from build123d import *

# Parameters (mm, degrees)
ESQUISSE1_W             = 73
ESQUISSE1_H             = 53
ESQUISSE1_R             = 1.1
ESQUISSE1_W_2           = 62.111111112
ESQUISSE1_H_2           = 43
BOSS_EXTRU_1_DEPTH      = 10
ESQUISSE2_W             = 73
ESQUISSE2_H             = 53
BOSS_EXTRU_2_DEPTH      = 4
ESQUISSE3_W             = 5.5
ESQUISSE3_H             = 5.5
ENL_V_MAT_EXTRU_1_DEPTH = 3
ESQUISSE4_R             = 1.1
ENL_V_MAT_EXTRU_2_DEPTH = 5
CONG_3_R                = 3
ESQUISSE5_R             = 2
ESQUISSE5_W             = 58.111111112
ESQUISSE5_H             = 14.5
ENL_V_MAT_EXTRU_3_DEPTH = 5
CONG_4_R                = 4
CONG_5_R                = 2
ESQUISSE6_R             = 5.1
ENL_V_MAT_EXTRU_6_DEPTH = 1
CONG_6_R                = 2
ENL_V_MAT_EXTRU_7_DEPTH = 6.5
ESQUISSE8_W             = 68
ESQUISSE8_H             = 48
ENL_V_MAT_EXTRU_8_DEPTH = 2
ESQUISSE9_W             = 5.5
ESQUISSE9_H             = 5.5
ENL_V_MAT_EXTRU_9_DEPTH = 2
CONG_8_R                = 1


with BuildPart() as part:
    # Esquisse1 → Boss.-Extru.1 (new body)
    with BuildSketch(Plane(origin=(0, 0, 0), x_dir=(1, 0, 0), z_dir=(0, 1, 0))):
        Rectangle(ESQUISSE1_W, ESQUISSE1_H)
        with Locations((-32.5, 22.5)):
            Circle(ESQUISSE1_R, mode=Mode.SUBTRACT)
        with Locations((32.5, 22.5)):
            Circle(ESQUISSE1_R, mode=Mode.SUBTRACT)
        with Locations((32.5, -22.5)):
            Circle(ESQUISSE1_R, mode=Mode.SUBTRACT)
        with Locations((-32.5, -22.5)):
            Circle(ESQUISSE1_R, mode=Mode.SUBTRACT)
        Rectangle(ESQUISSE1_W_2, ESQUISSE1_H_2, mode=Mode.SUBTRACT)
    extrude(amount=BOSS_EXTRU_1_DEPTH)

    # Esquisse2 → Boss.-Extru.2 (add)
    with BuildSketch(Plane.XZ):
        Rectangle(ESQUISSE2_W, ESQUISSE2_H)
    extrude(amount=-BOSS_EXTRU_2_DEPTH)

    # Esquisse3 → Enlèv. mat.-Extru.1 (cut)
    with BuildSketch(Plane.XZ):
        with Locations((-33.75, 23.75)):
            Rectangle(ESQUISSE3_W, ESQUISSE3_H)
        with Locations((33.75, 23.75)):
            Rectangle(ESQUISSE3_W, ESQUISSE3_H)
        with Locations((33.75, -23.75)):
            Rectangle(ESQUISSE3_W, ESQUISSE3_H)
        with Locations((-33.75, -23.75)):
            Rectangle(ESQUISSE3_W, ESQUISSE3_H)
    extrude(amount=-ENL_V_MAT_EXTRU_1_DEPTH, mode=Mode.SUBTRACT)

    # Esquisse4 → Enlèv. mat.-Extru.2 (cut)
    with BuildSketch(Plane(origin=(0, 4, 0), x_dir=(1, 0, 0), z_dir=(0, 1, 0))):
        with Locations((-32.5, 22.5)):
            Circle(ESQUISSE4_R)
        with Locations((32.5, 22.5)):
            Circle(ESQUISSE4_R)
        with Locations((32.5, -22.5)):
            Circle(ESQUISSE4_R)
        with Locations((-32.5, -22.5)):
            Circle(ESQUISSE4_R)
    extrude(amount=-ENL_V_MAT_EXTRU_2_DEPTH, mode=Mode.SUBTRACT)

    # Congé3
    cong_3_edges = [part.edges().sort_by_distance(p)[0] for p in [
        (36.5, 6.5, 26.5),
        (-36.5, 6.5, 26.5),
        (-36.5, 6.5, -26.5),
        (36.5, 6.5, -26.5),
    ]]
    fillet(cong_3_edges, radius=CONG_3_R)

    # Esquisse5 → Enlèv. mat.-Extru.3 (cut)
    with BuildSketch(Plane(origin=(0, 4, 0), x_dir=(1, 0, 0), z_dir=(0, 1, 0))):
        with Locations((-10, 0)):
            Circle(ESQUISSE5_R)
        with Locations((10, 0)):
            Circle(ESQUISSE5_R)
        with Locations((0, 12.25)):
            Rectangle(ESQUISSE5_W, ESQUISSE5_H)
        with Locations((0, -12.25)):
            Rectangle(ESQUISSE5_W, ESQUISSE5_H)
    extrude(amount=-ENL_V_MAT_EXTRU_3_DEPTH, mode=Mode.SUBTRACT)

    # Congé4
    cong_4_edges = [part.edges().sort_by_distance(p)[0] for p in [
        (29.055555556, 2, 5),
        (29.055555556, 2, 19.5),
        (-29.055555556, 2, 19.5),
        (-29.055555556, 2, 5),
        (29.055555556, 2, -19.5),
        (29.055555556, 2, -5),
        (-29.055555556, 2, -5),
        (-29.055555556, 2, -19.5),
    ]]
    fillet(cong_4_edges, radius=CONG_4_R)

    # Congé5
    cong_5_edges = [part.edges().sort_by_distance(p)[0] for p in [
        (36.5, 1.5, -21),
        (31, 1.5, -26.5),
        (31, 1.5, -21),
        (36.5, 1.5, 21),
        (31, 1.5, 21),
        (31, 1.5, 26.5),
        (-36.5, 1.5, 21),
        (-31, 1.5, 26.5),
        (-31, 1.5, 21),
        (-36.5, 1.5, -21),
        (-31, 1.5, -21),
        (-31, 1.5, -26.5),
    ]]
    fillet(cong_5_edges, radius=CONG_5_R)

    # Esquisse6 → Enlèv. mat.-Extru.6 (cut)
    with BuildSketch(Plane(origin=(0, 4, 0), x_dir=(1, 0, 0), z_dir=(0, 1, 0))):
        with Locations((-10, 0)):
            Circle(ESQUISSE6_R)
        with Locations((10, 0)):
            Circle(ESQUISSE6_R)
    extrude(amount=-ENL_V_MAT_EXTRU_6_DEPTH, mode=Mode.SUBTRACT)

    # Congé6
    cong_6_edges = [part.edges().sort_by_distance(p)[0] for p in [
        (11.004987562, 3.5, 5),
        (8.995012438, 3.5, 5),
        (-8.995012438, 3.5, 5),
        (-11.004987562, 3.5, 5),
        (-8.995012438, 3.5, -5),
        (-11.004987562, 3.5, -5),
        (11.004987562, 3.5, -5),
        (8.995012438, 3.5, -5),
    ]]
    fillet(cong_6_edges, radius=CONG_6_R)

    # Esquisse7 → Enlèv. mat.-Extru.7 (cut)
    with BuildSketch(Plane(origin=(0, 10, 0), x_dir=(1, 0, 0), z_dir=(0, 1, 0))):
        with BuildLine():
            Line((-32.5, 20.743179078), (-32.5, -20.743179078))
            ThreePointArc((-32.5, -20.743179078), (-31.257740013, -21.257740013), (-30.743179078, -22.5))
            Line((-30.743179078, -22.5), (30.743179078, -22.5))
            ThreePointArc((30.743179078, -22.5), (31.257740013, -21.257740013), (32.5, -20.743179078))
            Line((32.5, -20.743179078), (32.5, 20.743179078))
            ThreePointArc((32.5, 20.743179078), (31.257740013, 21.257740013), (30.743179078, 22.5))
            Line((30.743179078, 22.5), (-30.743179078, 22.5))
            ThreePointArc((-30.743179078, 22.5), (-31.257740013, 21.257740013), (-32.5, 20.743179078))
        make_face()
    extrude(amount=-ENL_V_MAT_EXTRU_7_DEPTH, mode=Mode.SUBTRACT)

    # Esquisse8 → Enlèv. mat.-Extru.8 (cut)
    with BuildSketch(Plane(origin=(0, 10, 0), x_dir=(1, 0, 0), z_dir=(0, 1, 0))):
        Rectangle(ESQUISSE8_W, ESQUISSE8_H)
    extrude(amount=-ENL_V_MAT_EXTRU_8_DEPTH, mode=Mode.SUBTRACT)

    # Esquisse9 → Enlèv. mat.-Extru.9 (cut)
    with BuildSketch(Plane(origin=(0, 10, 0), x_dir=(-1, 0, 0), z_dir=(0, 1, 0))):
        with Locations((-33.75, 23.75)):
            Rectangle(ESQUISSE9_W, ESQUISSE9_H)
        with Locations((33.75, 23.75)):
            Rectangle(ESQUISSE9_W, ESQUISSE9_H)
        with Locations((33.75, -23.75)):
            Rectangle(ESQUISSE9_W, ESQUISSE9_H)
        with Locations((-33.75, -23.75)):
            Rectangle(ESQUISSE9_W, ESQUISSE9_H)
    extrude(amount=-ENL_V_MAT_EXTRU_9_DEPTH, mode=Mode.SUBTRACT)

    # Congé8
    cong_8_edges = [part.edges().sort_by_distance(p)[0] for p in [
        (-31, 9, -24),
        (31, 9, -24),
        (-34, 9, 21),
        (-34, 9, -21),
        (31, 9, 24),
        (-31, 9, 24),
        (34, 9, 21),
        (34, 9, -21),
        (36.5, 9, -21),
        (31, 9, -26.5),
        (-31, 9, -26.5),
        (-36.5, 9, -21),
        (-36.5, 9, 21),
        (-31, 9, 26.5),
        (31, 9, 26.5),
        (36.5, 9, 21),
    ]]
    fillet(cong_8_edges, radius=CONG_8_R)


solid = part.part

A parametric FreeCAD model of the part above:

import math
import FreeCAD as App
import Part
import Sketcher
from FreeCAD import Vector
Q = App.Units.Quantity


def edges_at(feature, points):
    """Names of the edges that pass closest to the given points."""
    edges = feature.Shape.Edges
    near = lambda p: min(range(len(edges)), key=lambda i: edges[i].distToShape(Part.Vertex(*p))[0])
    return sorted({f"Edge{near(p) + 1}" for p in points})


def add_polygon(sketch, points):
    """Adds a closed chain of lines whose ends are joined by coincident constraints."""
    first, n = sketch.GeometryCount, len(points)
    for a, b in zip(points, points[1:] + points[:1]):
        sketch.addGeometry(Part.LineSegment(App.Vector(*a, 0), App.Vector(*b, 0)), False)
    for i in range(n):
        sketch.addConstraint(Sketcher.Constraint("Coincident", first + i, 2, first + (i + 1) % n, 1))

doc = App.newDocument("Part")
body = doc.addObject("PartDesign::Body", "Body")

sketch1 = body.newObject("Sketcher::SketchObject", "Sketch")
sketch1.AttachmentSupport = (doc.getObject("XZ_Plane"), [""])
sketch1.MapMode = "FlatFace"
add_polygon(sketch1, [(-36.5, -26.5), (-36.5, 26.5), (36.5, 26.5), (36.5, -26.5)])
sketch1.addGeometry(Part.Circle(Vector(-32.5, 22.5, 0), Vector(0, 0, 1), 1.1), False)
sketch1.addGeometry(Part.Circle(Vector(32.5, 22.5, 0), Vector(0, 0, 1), 1.1), False)
sketch1.addGeometry(Part.Circle(Vector(-32.5, -22.5, 0), Vector(0, 0, 1), 1.1), False)
add_polygon(sketch1, [(31.1, 21.5), (-31.1, 21.5), (-31.1, -21.5), (31.1, -21.5)])
sketch1.addGeometry(Part.Circle(Vector(32.5, -22.5, 0), Vector(0, 0, 1), 1.1), False)
sketch1.addConstraint(Sketcher.Constraint("Vertical", 0))
sketch1.addConstraint(Sketcher.Constraint("Horizontal", 1))
sketch1.addConstraint(Sketcher.Constraint("Vertical", 2))
sketch1.addConstraint(Sketcher.Constraint("Horizontal", 3))
sketch1.addConstraint(Sketcher.Constraint("Horizontal", 7))
sketch1.addConstraint(Sketcher.Constraint("Vertical", 8))
sketch1.addConstraint(Sketcher.Constraint("Horizontal", 9))
sketch1.addConstraint(Sketcher.Constraint("Vertical", 10))
sketch1.addConstraint(Sketcher.Constraint("Equal", 4, 5))
sketch1.addConstraint(Sketcher.Constraint("Equal", 5, 6))
sketch1.addConstraint(Sketcher.Constraint("Equal", 6, 11))
sketch1.addConstraint(Sketcher.Constraint("Symmetric", 5, 3, 6, 3, -1, 1))
sketch1.addConstraint(Sketcher.Constraint("Symmetric", 4, 3, 11, 3, -1, 1))
sketch1.addConstraint(Sketcher.Constraint("Symmetric", 0, 2, 2, 2, -1, 1))
sketch1.addConstraint(Sketcher.Constraint("Symmetric", 7, 2, 9, 2, -1, 1))
sketch1.addConstraint(Sketcher.Constraint("Symmetric", 4, 3, 5, 3, -2))
sketch1.addConstraint(Sketcher.Constraint("Diameter", 4, Q("2.2 mm")))
sketch1.addConstraint(Sketcher.Constraint("DistanceX", 1, 1, 1, 2, Q("73 mm")))
sketch1.addConstraint(Sketcher.Constraint("DistanceY", 0, 1, 0, 2, Q("53 mm")))
sketch1.addConstraint(Sketcher.Constraint("DistanceY", 8, 2, 8, 1, Q("43 mm")))
sketch1.addConstraint(Sketcher.Constraint("DistanceX", 4, 3, 5, 3, Q("65 mm")))
sketch1.addConstraint(Sketcher.Constraint("DistanceY", 6, 3, 4, 3, Q("45 mm")))
sketch1.addConstraint(Sketcher.Constraint("DistanceX", 7, 2, 7, 1, Q("62.111111 mm")))
pad1 = body.newObject("PartDesign::Pad", "Pad")
pad1.Profile = sketch1
pad1.Length = 10
pad1.Reversed = True

sketch2 = body.newObject("Sketcher::SketchObject", "Sketch001")
sketch2.AttachmentSupport = (doc.getObject("XZ_Plane"), [""])
sketch2.MapMode = "FlatFace"
add_polygon(sketch2, [(-36, 26), (-36, -26), (36, -26), (36, 26)])
sketch2.addConstraint(Sketcher.Constraint("Vertical", 0))
sketch2.addConstraint(Sketcher.Constraint("Horizontal", 1))
sketch2.addConstraint(Sketcher.Constraint("Vertical", 2))
sketch2.addConstraint(Sketcher.Constraint("Horizontal", 3))
sketch2.addConstraint(Sketcher.Constraint("Symmetric", 0, 2, 2, 2, -1, 1))
sketch2.addConstraint(Sketcher.Constraint("DistanceX", 1, 1, 1, 2, Q("73 mm")))
sketch2.addConstraint(Sketcher.Constraint("DistanceY", 0, 2, 0, 1, Q("53 mm")))
pad2 = body.newObject("PartDesign::Pad", "Pad001")
pad2.Profile = sketch2
pad2.Length = 4
pad2.Reversed = True

sketch3 = body.newObject("Sketcher::SketchObject", "Sketch002")
sketch3.AttachmentSupport = (doc.getObject("XZ_Plane"), [""])
sketch3.MapMode = "FlatFace"
add_polygon(sketch3, [(-36, 26), (-36, 21), (-31, 21), (-31, 26)])
add_polygon(sketch3, [(31, 26), (31, 21), (36, 21), (36, 26)])
add_polygon(sketch3, [(31, -21), (31, -26), (36, -26), (36, -21)])
add_polygon(sketch3, [(-36, -21), (-36, -26), (-31, -26), (-31, -21)])
sketch3.addConstraint(Sketcher.Constraint("Vertical", 0))
sketch3.addConstraint(Sketcher.Constraint("Horizontal", 1))
sketch3.addConstraint(Sketcher.Constraint("Vertical", 2))
sketch3.addConstraint(Sketcher.Constraint("Horizontal", 3))
sketch3.addConstraint(Sketcher.Constraint("Vertical", 4))
sketch3.addConstraint(Sketcher.Constraint("Horizontal", 5))
sketch3.addConstraint(Sketcher.Constraint("Vertical", 6))
sketch3.addConstraint(Sketcher.Constraint("Horizontal", 7))
sketch3.addConstraint(Sketcher.Constraint("Vertical", 8))
sketch3.addConstraint(Sketcher.Constraint("Horizontal", 9))
sketch3.addConstraint(Sketcher.Constraint("Vertical", 10))
sketch3.addConstraint(Sketcher.Constraint("Horizontal", 11))
sketch3.addConstraint(Sketcher.Constraint("Vertical", 12))
sketch3.addConstraint(Sketcher.Constraint("Horizontal", 13))
sketch3.addConstraint(Sketcher.Constraint("Vertical", 14))
sketch3.addConstraint(Sketcher.Constraint("Horizontal", 15))
sketch3.addConstraint(Sketcher.Constraint("Symmetric", 2, 2, 8, 2, -1, 1))
sketch3.addConstraint(Sketcher.Constraint("Symmetric", 0, 2, 10, 2, -1, 1))
sketch3.addConstraint(Sketcher.Constraint("Symmetric", 6, 2, 12, 2, -1, 1))
sketch3.addConstraint(Sketcher.Constraint("Symmetric", 4, 2, 14, 2, -1, 1))
sketch3.addConstraint(Sketcher.Constraint("Symmetric", 1, 2, 4, 2, -2))
sketch3.addConstraint(Sketcher.Constraint("Symmetric", 3, 2, 6, 2, -2))
sketch3.addConstraint(Sketcher.Constraint("Equal", 15, 0))
sketch3.addConstraint(Sketcher.Constraint("DistanceX", 1, 1, 1, 2, Q("5.5 mm")))
sketch3.addConstraint(Sketcher.Constraint("DistanceY", -1, 1, 0, 2, Q("21 mm")))
sketch3.addConstraint(Sketcher.Constraint("DistanceX", 1, 2, -1, 1, Q("31 mm")))
pocket1 = body.newObject("PartDesign::Pocket", "Pocket")
pocket1.Profile = sketch3
pocket1.Length = 3

sketch4 = body.newObject("Sketcher::SketchObject", "Sketch003")
sketch4.AttachmentSupport = (doc.getObject("XZ_Plane"), [""])
sketch4.MapMode = "FlatFace"
sketch4.AttachmentOffset = App.Placement(Vector(0, 0, -4), App.Rotation())
sketch4.addGeometry(Part.Circle(Vector(-32.5, -22.5, 0), Vector(0, 0, 1), 1.1), False)
sketch4.addGeometry(Part.Circle(Vector(32.5, -22.5, 0), Vector(0, 0, 1), 1.1), False)
sketch4.addGeometry(Part.Circle(Vector(32.5, 22.5, 0), Vector(0, 0, 1), 1.1), False)
sketch4.addGeometry(Part.Circle(Vector(-32.5, 22.5, 0), Vector(0, 0, 1), 1.1), False)
sketch4.addConstraint(Sketcher.Constraint("Equal", 0, 1))
sketch4.addConstraint(Sketcher.Constraint("Equal", 1, 2))
sketch4.addConstraint(Sketcher.Constraint("Equal", 2, 3))
sketch4.addConstraint(Sketcher.Constraint("Symmetric", 0, 3, 2, 3, -1, 1))
sketch4.addConstraint(Sketcher.Constraint("Symmetric", 1, 3, 3, 3, -1, 1))
sketch4.addConstraint(Sketcher.Constraint("Symmetric", 0, 3, 1, 3, -2))
sketch4.addConstraint(Sketcher.Constraint("Diameter", 0, Q("2.2 mm")))
sketch4.addConstraint(Sketcher.Constraint("DistanceX", 0, 3, 1, 3, Q("65 mm")))
sketch4.addConstraint(Sketcher.Constraint("DistanceY", 1, 3, 2, 3, Q("45 mm")))
pocket2 = body.newObject("PartDesign::Pocket", "Pocket001")
pocket2.Profile = sketch4
pocket2.Length = 5
pocket2.Reversed = True
doc.recompute()

fillet = body.newObject("PartDesign::Fillet", "Fillet")
fillet.Base = (pocket2, edges_at(pocket2, [
    (36.5, 6.5, 26.5),
    (-36.5, 6.5, 26.5),
    (-36.5, 6.5, -26.5),
    (36.5, 6.5, -26.5),
]))
fillet.Radius = 3

sketch5 = body.newObject("Sketcher::SketchObject", "Sketch004")
sketch5.AttachmentSupport = (doc.getObject("XZ_Plane"), [""])
sketch5.MapMode = "FlatFace"
sketch5.AttachmentOffset = App.Placement(Vector(0, 0, -4), App.Rotation())
sketch5.addGeometry(Part.Circle(Vector(-10, 0, 0), Vector(0, 0, 1), 2), False)
sketch5.addGeometry(Part.Circle(Vector(10, 0, 0), Vector(0, 0, 1), 2), False)
add_polygon(sketch5, [(-29.1, -19.5), (-29.1, -5), (29.1, -5), (29.1, -19.5)])
add_polygon(sketch5, [(-29.1, 5), (-29.1, 19.5), (29.1, 19.5), (29.1, 5)])
sketch5.addConstraint(Sketcher.Constraint("Vertical", 2))
sketch5.addConstraint(Sketcher.Constraint("Horizontal", 3))
sketch5.addConstraint(Sketcher.Constraint("Vertical", 4))
sketch5.addConstraint(Sketcher.Constraint("Horizontal", 5))
sketch5.addConstraint(Sketcher.Constraint("Vertical", 6))
sketch5.addConstraint(Sketcher.Constraint("Horizontal", 7))
sketch5.addConstraint(Sketcher.Constraint("Vertical", 8))
sketch5.addConstraint(Sketcher.Constraint("Horizontal", 9))
sketch5.addConstraint(Sketcher.Constraint("Equal", 0, 1))
sketch5.addConstraint(Sketcher.Constraint("Symmetric", 0, 3, 1, 3, -1, 1))
sketch5.addConstraint(Sketcher.Constraint("Symmetric", 4, 2, 6, 2, -1, 1))
sketch5.addConstraint(Sketcher.Constraint("Symmetric", 2, 2, 8, 2, -1, 1))
sketch5.addConstraint(Sketcher.Constraint("PointOnObject", 0, 3, -1))
sketch5.addConstraint(Sketcher.Constraint("Vertical", 5, 2, 6, 2))
sketch5.addConstraint(Sketcher.Constraint("Diameter", 0, Q("4 mm")))
sketch5.addConstraint(Sketcher.Constraint("DistanceY", 2, 1, 2, 2, Q("14.5 mm")))
sketch5.addConstraint(Sketcher.Constraint("DistanceX", 0, 3, -1, 1, Q("10 mm")))
sketch5.addConstraint(Sketcher.Constraint("DistanceY", 2, 2, -1, 1, Q("5 mm")))
sketch5.addConstraint(Sketcher.Constraint("DistanceX", 3, 1, 3, 2, Q("58.111111 mm")))
pocket3 = body.newObject("PartDesign::Pocket", "Pocket002")
pocket3.Profile = sketch5
pocket3.Length = 5
pocket3.Reversed = True
doc.recompute()

fillet2 = body.newObject("PartDesign::Fillet", "Fillet001")
fillet2.Base = (pocket3, edges_at(pocket3, [
    (29.056, 2, 5),
    (29.056, 2, 19.5),
    (-29.056, 2, 19.5),
    (-29.056, 2, 5),
    (29.056, 2, -19.5),
    (29.056, 2, -5),
    (-29.056, 2, -5),
    (-29.056, 2, -19.5),
]))
fillet2.Radius = 4
doc.recompute()

fillet3 = body.newObject("PartDesign::Fillet", "Fillet002")
fillet3.Base = (fillet2, edges_at(fillet2, [
    (36.5, 1.5, -21),
    (31, 1.5, -26.5),
    (31, 1.5, -21),
    (36.5, 1.5, 21),
    (31, 1.5, 21),
    (31, 1.5, 26.5),
    (-36.5, 1.5, 21),
    (-31, 1.5, 26.5),
    (-31, 1.5, 21),
    (-36.5, 1.5, -21),
    (-31, 1.5, -21),
    (-31, 1.5, -26.5),
]))
fillet3.Radius = 2

sketch6 = body.newObject("Sketcher::SketchObject", "Sketch005")
sketch6.AttachmentSupport = (doc.getObject("XZ_Plane"), [""])
sketch6.MapMode = "FlatFace"
sketch6.AttachmentOffset = App.Placement(Vector(0, 0, -4), App.Rotation())
sketch6.addGeometry(Part.Circle(Vector(-10, 0, 0), Vector(0, 0, 1), 5), False)
sketch6.addGeometry(Part.Circle(Vector(10, 0, 0), Vector(0, 0, 1), 5), False)
sketch6.addConstraint(Sketcher.Constraint("Equal", 0, 1))
sketch6.addConstraint(Sketcher.Constraint("Symmetric", 0, 3, 1, 3, -1, 1))
sketch6.addConstraint(Sketcher.Constraint("PointOnObject", 0, 3, -1))
sketch6.addConstraint(Sketcher.Constraint("Diameter", 0, Q("10.2 mm")))
sketch6.addConstraint(Sketcher.Constraint("DistanceX", 0, 3, -1, 1, Q("10 mm")))
pocket4 = body.newObject("PartDesign::Pocket", "Pocket003")
pocket4.Profile = sketch6
pocket4.Length = 1
pocket4.Reversed = True
doc.recompute()

fillet4 = body.newObject("PartDesign::Fillet", "Fillet003")
fillet4.Base = (pocket4, edges_at(pocket4, [
    (11.005, 3.5, 5),
    (8.995, 3.5, 5),
    (-8.995, 3.5, 5),
    (-11.005, 3.5, 5),
    (-8.995, 3.5, -5),
    (-11.005, 3.5, -5),
    (11.005, 3.5, -5),
    (8.995, 3.5, -5),
]))
fillet4.Radius = 2

sketch7 = body.newObject("Sketcher::SketchObject", "Sketch006")
sketch7.AttachmentSupport = (doc.getObject("XZ_Plane"), [""])
sketch7.MapMode = "FlatFace"
sketch7.AttachmentOffset = App.Placement(Vector(0, 0, -10), App.Rotation())
sketch7.addGeometry(Part.LineSegment(Vector(-32.5, -20.7, 0), Vector(-32.5, 20.7, 0)), False)
sketch7.addGeometry(Part.ArcOfCircle(Part.Circle(Vector(-32.5, 22.5, 0), Vector(0, 0, 1), 1.8), math.radians(-90), math.radians(0)), False)
sketch7.addGeometry(Part.LineSegment(Vector(-30.7, 22.5, 0), Vector(30.7, 22.5, 0)), False)
sketch7.addGeometry(Part.ArcOfCircle(Part.Circle(Vector(32.5, 22.5, 0), Vector(0, 0, 1), 1.8), math.radians(-180), math.radians(-90)), False)
sketch7.addGeometry(Part.LineSegment(Vector(32.5, 20.7, 0), Vector(32.5, -20.7, 0)), False)
sketch7.addGeometry(Part.ArcOfCircle(Part.Circle(Vector(32.5, -22.5, 0), Vector(0, 0, 1), 1.8), math.radians(90), math.radians(180)), False)
sketch7.addGeometry(Part.LineSegment(Vector(30.7, -22.5, 0), Vector(-30.7, -22.5, 0)), False)
sketch7.addGeometry(Part.ArcOfCircle(Part.Circle(Vector(-32.5, -22.5, 0), Vector(0, 0, 1), 1.8), math.radians(0), math.radians(90)), False)
sketch7.addConstraint(Sketcher.Constraint("Coincident", 0, 2, 1, 1))
sketch7.addConstraint(Sketcher.Constraint("Coincident", 1, 2, 2, 1))
sketch7.addConstraint(Sketcher.Constraint("Coincident", 2, 2, 3, 1))
sketch7.addConstraint(Sketcher.Constraint("Coincident", 3, 2, 4, 1))
sketch7.addConstraint(Sketcher.Constraint("Coincident", 4, 2, 5, 1))
sketch7.addConstraint(Sketcher.Constraint("Coincident", 5, 2, 6, 1))
sketch7.addConstraint(Sketcher.Constraint("Coincident", 6, 2, 7, 1))
sketch7.addConstraint(Sketcher.Constraint("Coincident", 7, 2, 0, 1))
sketch7.addConstraint(Sketcher.Constraint("Vertical", 0))
sketch7.addConstraint(Sketcher.Constraint("Horizontal", 2))
sketch7.addConstraint(Sketcher.Constraint("Vertical", 4))
sketch7.addConstraint(Sketcher.Constraint("Horizontal", 6))
sketch7.addConstraint(Sketcher.Constraint("Equal", 1, 3))
sketch7.addConstraint(Sketcher.Constraint("Equal", 3, 5))
sketch7.addConstraint(Sketcher.Constraint("Equal", 5, 7))
sketch7.addConstraint(Sketcher.Constraint("Symmetric", 1, 3, 5, 3, -1, 1))
sketch7.addConstraint(Sketcher.Constraint("Symmetric", 3, 3, 7, 3, -1, 1))
sketch7.addConstraint(Sketcher.Constraint("Symmetric", 1, 3, 3, 3, -2))
sketch7.addConstraint(Sketcher.Constraint("Horizontal", 3, 3, 1, 2))
sketch7.addConstraint(Sketcher.Constraint("Horizontal", 7, 3, 5, 2))
sketch7.addConstraint(Sketcher.Constraint("Vertical", 7, 3, 0, 2))
sketch7.addConstraint(Sketcher.Constraint("Vertical", 5, 3, 3, 2))
sketch7.addConstraint(Sketcher.Constraint("DistanceX", 1, 3, 3, 3, Q("65 mm")))
sketch7.addConstraint(Sketcher.Constraint("DistanceY", 5, 3, 3, 3, Q("45 mm")))
sketch7.addConstraint(Sketcher.Constraint("Radius", 1, Q("1.756821 mm")))
pocket5 = body.newObject("PartDesign::Pocket", "Pocket004")
pocket5.Profile = sketch7
pocket5.Length = 6.5
pocket5.Reversed = True

sketch8 = body.newObject("Sketcher::SketchObject", "Sketch007")
sketch8.AttachmentSupport = (doc.getObject("XZ_Plane"), [""])
sketch8.MapMode = "FlatFace"
sketch8.AttachmentOffset = App.Placement(Vector(0, 0, -10), App.Rotation())
add_polygon(sketch8, [(-34, -24), (-34, 24), (34, 24), (34, -24)])
sketch8.addConstraint(Sketcher.Constraint("Vertical", 0))
sketch8.addConstraint(Sketcher.Constraint("Horizontal", 1))
sketch8.addConstraint(Sketcher.Constraint("Vertical", 2))
sketch8.addConstraint(Sketcher.Constraint("Horizontal", 3))
sketch8.addConstraint(Sketcher.Constraint("Symmetric", 0, 2, 2, 2, -1, 1))
sketch8.addConstraint(Sketcher.Constraint("DistanceX", 1, 1, 1, 2, Q("68 mm")))
sketch8.addConstraint(Sketcher.Constraint("DistanceY", 0, 1, 0, 2, Q("48 mm")))
pocket6 = body.newObject("PartDesign::Pocket", "Pocket005")
pocket6.Profile = sketch8
pocket6.Length = 2
pocket6.Reversed = True

sketch9 = body.newObject("Sketcher::SketchObject", "Sketch008")
sketch9.AttachmentSupport = (doc.getObject("XZ_Plane"), [""])
sketch9.MapMode = "FlatFace"
sketch9.AttachmentOffset = App.Placement(Vector(0, 0, -10), App.Rotation())
add_polygon(sketch9, [(36, 26), (36, 21), (31, 21), (31, 26)])
add_polygon(sketch9, [(-31, 26), (-31, 21), (-36, 21), (-36, 26)])
add_polygon(sketch9, [(-31, -21), (-31, -26), (-36, -26), (-36, -21)])
add_polygon(sketch9, [(36, -21), (36, -26), (31, -26), (31, -21)])
sketch9.addConstraint(Sketcher.Constraint("Vertical", 0))
sketch9.addConstraint(Sketcher.Constraint("Horizontal", 1))
sketch9.addConstraint(Sketcher.Constraint("Vertical", 2))
sketch9.addConstraint(Sketcher.Constraint("Horizontal", 3))
sketch9.addConstraint(Sketcher.Constraint("Vertical", 4))
sketch9.addConstraint(Sketcher.Constraint("Horizontal", 5))
sketch9.addConstraint(Sketcher.Constraint("Vertical", 6))
sketch9.addConstraint(Sketcher.Constraint("Horizontal", 7))
sketch9.addConstraint(Sketcher.Constraint("Vertical", 8))
sketch9.addConstraint(Sketcher.Constraint("Horizontal", 9))
sketch9.addConstraint(Sketcher.Constraint("Vertical", 10))
sketch9.addConstraint(Sketcher.Constraint("Horizontal", 11))
sketch9.addConstraint(Sketcher.Constraint("Vertical", 12))
sketch9.addConstraint(Sketcher.Constraint("Horizontal", 13))
sketch9.addConstraint(Sketcher.Constraint("Vertical", 14))
sketch9.addConstraint(Sketcher.Constraint("Horizontal", 15))
sketch9.addConstraint(Sketcher.Constraint("Symmetric", 2, 2, 8, 2, -1, 1))
sketch9.addConstraint(Sketcher.Constraint("Symmetric", 0, 2, 10, 2, -1, 1))
sketch9.addConstraint(Sketcher.Constraint("Symmetric", 6, 2, 12, 2, -1, 1))
sketch9.addConstraint(Sketcher.Constraint("Symmetric", 4, 2, 14, 2, -1, 1))
sketch9.addConstraint(Sketcher.Constraint("Symmetric", 1, 2, 4, 2, -2))
sketch9.addConstraint(Sketcher.Constraint("Symmetric", 3, 2, 6, 2, -2))
sketch9.addConstraint(Sketcher.Constraint("Equal", 15, 0))
sketch9.addConstraint(Sketcher.Constraint("DistanceX", 1, 2, 1, 1, Q("5.5 mm")))
sketch9.addConstraint(Sketcher.Constraint("DistanceY", -1, 1, 0, 2, Q("21 mm")))
sketch9.addConstraint(Sketcher.Constraint("DistanceX", -1, 1, 1, 2, Q("31 mm")))
pocket7 = body.newObject("PartDesign::Pocket", "Pocket006")
pocket7.Profile = sketch9
pocket7.Length = 2
pocket7.Reversed = True
doc.recompute()

fillet5 = body.newObject("PartDesign::Fillet", "Fillet004")
fillet5.Base = (pocket7, edges_at(pocket7, [
    (-31, 9, -24),
    (31, 9, -24),
    (-34, 9, 21),
    (-34, 9, -21),
    (31, 9, 24),
    (-31, 9, 24),
    (34, 9, 21),
    (34, 9, -21),
    (36.5, 9, -21),
    (31, 9, -26.5),
    (-31, 9, -26.5),
    (-36.5, 9, -21),
    (-36.5, 9, 21),
    (-31, 9, 26.5),
    (31, 9, 26.5),
    (36.5, 9, 21),
]))
fillet5.Radius = 1

doc.recompute()
